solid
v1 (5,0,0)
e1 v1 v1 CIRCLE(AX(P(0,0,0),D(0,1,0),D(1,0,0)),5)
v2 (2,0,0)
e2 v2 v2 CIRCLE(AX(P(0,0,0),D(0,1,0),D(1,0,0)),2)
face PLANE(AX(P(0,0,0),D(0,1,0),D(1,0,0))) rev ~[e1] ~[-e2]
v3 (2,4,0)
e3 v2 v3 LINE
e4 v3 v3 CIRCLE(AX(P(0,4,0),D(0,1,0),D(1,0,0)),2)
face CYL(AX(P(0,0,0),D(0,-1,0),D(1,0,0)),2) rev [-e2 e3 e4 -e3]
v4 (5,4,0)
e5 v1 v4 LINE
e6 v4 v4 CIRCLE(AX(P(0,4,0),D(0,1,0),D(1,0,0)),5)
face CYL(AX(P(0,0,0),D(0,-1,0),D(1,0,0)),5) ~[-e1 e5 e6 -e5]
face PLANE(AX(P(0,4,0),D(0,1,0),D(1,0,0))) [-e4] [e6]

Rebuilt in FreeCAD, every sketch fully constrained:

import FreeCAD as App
import Part
import Sketcher

doc = App.newDocument("Part")
body = doc.addObject("PartDesign::Body", "Body")

sketch1 = body.newObject("Sketcher::SketchObject", "Sketch")
sketch1.AttachmentSupport = (doc.getObject("XZ_Plane"), [""])
sketch1.MapMode = "FlatFace"
sketch1.addGeometry([
    Part.Circle(App.Vector(0, 0, 0), App.Vector(0, 0, 1), 5),
    Part.Circle(App.Vector(0, 0, 0), App.Vector(0, 0, 1), 2),
], False)
sketch1.addConstraint([
    Sketcher.Constraint("Coincident", 0, 3, -1, 1),
    Sketcher.Constraint("Coincident", 1, 3, -1, 1),
    Sketcher.Constraint("Diameter", 0, 10.0),
    Sketcher.Constraint("Diameter", 1, 4.0),
])
pad1 = body.newObject("PartDesign::Pad", "Pad")
pad1.Profile = sketch1
pad1.Length = 4
pad1.Reversed = True

doc.recompute()
